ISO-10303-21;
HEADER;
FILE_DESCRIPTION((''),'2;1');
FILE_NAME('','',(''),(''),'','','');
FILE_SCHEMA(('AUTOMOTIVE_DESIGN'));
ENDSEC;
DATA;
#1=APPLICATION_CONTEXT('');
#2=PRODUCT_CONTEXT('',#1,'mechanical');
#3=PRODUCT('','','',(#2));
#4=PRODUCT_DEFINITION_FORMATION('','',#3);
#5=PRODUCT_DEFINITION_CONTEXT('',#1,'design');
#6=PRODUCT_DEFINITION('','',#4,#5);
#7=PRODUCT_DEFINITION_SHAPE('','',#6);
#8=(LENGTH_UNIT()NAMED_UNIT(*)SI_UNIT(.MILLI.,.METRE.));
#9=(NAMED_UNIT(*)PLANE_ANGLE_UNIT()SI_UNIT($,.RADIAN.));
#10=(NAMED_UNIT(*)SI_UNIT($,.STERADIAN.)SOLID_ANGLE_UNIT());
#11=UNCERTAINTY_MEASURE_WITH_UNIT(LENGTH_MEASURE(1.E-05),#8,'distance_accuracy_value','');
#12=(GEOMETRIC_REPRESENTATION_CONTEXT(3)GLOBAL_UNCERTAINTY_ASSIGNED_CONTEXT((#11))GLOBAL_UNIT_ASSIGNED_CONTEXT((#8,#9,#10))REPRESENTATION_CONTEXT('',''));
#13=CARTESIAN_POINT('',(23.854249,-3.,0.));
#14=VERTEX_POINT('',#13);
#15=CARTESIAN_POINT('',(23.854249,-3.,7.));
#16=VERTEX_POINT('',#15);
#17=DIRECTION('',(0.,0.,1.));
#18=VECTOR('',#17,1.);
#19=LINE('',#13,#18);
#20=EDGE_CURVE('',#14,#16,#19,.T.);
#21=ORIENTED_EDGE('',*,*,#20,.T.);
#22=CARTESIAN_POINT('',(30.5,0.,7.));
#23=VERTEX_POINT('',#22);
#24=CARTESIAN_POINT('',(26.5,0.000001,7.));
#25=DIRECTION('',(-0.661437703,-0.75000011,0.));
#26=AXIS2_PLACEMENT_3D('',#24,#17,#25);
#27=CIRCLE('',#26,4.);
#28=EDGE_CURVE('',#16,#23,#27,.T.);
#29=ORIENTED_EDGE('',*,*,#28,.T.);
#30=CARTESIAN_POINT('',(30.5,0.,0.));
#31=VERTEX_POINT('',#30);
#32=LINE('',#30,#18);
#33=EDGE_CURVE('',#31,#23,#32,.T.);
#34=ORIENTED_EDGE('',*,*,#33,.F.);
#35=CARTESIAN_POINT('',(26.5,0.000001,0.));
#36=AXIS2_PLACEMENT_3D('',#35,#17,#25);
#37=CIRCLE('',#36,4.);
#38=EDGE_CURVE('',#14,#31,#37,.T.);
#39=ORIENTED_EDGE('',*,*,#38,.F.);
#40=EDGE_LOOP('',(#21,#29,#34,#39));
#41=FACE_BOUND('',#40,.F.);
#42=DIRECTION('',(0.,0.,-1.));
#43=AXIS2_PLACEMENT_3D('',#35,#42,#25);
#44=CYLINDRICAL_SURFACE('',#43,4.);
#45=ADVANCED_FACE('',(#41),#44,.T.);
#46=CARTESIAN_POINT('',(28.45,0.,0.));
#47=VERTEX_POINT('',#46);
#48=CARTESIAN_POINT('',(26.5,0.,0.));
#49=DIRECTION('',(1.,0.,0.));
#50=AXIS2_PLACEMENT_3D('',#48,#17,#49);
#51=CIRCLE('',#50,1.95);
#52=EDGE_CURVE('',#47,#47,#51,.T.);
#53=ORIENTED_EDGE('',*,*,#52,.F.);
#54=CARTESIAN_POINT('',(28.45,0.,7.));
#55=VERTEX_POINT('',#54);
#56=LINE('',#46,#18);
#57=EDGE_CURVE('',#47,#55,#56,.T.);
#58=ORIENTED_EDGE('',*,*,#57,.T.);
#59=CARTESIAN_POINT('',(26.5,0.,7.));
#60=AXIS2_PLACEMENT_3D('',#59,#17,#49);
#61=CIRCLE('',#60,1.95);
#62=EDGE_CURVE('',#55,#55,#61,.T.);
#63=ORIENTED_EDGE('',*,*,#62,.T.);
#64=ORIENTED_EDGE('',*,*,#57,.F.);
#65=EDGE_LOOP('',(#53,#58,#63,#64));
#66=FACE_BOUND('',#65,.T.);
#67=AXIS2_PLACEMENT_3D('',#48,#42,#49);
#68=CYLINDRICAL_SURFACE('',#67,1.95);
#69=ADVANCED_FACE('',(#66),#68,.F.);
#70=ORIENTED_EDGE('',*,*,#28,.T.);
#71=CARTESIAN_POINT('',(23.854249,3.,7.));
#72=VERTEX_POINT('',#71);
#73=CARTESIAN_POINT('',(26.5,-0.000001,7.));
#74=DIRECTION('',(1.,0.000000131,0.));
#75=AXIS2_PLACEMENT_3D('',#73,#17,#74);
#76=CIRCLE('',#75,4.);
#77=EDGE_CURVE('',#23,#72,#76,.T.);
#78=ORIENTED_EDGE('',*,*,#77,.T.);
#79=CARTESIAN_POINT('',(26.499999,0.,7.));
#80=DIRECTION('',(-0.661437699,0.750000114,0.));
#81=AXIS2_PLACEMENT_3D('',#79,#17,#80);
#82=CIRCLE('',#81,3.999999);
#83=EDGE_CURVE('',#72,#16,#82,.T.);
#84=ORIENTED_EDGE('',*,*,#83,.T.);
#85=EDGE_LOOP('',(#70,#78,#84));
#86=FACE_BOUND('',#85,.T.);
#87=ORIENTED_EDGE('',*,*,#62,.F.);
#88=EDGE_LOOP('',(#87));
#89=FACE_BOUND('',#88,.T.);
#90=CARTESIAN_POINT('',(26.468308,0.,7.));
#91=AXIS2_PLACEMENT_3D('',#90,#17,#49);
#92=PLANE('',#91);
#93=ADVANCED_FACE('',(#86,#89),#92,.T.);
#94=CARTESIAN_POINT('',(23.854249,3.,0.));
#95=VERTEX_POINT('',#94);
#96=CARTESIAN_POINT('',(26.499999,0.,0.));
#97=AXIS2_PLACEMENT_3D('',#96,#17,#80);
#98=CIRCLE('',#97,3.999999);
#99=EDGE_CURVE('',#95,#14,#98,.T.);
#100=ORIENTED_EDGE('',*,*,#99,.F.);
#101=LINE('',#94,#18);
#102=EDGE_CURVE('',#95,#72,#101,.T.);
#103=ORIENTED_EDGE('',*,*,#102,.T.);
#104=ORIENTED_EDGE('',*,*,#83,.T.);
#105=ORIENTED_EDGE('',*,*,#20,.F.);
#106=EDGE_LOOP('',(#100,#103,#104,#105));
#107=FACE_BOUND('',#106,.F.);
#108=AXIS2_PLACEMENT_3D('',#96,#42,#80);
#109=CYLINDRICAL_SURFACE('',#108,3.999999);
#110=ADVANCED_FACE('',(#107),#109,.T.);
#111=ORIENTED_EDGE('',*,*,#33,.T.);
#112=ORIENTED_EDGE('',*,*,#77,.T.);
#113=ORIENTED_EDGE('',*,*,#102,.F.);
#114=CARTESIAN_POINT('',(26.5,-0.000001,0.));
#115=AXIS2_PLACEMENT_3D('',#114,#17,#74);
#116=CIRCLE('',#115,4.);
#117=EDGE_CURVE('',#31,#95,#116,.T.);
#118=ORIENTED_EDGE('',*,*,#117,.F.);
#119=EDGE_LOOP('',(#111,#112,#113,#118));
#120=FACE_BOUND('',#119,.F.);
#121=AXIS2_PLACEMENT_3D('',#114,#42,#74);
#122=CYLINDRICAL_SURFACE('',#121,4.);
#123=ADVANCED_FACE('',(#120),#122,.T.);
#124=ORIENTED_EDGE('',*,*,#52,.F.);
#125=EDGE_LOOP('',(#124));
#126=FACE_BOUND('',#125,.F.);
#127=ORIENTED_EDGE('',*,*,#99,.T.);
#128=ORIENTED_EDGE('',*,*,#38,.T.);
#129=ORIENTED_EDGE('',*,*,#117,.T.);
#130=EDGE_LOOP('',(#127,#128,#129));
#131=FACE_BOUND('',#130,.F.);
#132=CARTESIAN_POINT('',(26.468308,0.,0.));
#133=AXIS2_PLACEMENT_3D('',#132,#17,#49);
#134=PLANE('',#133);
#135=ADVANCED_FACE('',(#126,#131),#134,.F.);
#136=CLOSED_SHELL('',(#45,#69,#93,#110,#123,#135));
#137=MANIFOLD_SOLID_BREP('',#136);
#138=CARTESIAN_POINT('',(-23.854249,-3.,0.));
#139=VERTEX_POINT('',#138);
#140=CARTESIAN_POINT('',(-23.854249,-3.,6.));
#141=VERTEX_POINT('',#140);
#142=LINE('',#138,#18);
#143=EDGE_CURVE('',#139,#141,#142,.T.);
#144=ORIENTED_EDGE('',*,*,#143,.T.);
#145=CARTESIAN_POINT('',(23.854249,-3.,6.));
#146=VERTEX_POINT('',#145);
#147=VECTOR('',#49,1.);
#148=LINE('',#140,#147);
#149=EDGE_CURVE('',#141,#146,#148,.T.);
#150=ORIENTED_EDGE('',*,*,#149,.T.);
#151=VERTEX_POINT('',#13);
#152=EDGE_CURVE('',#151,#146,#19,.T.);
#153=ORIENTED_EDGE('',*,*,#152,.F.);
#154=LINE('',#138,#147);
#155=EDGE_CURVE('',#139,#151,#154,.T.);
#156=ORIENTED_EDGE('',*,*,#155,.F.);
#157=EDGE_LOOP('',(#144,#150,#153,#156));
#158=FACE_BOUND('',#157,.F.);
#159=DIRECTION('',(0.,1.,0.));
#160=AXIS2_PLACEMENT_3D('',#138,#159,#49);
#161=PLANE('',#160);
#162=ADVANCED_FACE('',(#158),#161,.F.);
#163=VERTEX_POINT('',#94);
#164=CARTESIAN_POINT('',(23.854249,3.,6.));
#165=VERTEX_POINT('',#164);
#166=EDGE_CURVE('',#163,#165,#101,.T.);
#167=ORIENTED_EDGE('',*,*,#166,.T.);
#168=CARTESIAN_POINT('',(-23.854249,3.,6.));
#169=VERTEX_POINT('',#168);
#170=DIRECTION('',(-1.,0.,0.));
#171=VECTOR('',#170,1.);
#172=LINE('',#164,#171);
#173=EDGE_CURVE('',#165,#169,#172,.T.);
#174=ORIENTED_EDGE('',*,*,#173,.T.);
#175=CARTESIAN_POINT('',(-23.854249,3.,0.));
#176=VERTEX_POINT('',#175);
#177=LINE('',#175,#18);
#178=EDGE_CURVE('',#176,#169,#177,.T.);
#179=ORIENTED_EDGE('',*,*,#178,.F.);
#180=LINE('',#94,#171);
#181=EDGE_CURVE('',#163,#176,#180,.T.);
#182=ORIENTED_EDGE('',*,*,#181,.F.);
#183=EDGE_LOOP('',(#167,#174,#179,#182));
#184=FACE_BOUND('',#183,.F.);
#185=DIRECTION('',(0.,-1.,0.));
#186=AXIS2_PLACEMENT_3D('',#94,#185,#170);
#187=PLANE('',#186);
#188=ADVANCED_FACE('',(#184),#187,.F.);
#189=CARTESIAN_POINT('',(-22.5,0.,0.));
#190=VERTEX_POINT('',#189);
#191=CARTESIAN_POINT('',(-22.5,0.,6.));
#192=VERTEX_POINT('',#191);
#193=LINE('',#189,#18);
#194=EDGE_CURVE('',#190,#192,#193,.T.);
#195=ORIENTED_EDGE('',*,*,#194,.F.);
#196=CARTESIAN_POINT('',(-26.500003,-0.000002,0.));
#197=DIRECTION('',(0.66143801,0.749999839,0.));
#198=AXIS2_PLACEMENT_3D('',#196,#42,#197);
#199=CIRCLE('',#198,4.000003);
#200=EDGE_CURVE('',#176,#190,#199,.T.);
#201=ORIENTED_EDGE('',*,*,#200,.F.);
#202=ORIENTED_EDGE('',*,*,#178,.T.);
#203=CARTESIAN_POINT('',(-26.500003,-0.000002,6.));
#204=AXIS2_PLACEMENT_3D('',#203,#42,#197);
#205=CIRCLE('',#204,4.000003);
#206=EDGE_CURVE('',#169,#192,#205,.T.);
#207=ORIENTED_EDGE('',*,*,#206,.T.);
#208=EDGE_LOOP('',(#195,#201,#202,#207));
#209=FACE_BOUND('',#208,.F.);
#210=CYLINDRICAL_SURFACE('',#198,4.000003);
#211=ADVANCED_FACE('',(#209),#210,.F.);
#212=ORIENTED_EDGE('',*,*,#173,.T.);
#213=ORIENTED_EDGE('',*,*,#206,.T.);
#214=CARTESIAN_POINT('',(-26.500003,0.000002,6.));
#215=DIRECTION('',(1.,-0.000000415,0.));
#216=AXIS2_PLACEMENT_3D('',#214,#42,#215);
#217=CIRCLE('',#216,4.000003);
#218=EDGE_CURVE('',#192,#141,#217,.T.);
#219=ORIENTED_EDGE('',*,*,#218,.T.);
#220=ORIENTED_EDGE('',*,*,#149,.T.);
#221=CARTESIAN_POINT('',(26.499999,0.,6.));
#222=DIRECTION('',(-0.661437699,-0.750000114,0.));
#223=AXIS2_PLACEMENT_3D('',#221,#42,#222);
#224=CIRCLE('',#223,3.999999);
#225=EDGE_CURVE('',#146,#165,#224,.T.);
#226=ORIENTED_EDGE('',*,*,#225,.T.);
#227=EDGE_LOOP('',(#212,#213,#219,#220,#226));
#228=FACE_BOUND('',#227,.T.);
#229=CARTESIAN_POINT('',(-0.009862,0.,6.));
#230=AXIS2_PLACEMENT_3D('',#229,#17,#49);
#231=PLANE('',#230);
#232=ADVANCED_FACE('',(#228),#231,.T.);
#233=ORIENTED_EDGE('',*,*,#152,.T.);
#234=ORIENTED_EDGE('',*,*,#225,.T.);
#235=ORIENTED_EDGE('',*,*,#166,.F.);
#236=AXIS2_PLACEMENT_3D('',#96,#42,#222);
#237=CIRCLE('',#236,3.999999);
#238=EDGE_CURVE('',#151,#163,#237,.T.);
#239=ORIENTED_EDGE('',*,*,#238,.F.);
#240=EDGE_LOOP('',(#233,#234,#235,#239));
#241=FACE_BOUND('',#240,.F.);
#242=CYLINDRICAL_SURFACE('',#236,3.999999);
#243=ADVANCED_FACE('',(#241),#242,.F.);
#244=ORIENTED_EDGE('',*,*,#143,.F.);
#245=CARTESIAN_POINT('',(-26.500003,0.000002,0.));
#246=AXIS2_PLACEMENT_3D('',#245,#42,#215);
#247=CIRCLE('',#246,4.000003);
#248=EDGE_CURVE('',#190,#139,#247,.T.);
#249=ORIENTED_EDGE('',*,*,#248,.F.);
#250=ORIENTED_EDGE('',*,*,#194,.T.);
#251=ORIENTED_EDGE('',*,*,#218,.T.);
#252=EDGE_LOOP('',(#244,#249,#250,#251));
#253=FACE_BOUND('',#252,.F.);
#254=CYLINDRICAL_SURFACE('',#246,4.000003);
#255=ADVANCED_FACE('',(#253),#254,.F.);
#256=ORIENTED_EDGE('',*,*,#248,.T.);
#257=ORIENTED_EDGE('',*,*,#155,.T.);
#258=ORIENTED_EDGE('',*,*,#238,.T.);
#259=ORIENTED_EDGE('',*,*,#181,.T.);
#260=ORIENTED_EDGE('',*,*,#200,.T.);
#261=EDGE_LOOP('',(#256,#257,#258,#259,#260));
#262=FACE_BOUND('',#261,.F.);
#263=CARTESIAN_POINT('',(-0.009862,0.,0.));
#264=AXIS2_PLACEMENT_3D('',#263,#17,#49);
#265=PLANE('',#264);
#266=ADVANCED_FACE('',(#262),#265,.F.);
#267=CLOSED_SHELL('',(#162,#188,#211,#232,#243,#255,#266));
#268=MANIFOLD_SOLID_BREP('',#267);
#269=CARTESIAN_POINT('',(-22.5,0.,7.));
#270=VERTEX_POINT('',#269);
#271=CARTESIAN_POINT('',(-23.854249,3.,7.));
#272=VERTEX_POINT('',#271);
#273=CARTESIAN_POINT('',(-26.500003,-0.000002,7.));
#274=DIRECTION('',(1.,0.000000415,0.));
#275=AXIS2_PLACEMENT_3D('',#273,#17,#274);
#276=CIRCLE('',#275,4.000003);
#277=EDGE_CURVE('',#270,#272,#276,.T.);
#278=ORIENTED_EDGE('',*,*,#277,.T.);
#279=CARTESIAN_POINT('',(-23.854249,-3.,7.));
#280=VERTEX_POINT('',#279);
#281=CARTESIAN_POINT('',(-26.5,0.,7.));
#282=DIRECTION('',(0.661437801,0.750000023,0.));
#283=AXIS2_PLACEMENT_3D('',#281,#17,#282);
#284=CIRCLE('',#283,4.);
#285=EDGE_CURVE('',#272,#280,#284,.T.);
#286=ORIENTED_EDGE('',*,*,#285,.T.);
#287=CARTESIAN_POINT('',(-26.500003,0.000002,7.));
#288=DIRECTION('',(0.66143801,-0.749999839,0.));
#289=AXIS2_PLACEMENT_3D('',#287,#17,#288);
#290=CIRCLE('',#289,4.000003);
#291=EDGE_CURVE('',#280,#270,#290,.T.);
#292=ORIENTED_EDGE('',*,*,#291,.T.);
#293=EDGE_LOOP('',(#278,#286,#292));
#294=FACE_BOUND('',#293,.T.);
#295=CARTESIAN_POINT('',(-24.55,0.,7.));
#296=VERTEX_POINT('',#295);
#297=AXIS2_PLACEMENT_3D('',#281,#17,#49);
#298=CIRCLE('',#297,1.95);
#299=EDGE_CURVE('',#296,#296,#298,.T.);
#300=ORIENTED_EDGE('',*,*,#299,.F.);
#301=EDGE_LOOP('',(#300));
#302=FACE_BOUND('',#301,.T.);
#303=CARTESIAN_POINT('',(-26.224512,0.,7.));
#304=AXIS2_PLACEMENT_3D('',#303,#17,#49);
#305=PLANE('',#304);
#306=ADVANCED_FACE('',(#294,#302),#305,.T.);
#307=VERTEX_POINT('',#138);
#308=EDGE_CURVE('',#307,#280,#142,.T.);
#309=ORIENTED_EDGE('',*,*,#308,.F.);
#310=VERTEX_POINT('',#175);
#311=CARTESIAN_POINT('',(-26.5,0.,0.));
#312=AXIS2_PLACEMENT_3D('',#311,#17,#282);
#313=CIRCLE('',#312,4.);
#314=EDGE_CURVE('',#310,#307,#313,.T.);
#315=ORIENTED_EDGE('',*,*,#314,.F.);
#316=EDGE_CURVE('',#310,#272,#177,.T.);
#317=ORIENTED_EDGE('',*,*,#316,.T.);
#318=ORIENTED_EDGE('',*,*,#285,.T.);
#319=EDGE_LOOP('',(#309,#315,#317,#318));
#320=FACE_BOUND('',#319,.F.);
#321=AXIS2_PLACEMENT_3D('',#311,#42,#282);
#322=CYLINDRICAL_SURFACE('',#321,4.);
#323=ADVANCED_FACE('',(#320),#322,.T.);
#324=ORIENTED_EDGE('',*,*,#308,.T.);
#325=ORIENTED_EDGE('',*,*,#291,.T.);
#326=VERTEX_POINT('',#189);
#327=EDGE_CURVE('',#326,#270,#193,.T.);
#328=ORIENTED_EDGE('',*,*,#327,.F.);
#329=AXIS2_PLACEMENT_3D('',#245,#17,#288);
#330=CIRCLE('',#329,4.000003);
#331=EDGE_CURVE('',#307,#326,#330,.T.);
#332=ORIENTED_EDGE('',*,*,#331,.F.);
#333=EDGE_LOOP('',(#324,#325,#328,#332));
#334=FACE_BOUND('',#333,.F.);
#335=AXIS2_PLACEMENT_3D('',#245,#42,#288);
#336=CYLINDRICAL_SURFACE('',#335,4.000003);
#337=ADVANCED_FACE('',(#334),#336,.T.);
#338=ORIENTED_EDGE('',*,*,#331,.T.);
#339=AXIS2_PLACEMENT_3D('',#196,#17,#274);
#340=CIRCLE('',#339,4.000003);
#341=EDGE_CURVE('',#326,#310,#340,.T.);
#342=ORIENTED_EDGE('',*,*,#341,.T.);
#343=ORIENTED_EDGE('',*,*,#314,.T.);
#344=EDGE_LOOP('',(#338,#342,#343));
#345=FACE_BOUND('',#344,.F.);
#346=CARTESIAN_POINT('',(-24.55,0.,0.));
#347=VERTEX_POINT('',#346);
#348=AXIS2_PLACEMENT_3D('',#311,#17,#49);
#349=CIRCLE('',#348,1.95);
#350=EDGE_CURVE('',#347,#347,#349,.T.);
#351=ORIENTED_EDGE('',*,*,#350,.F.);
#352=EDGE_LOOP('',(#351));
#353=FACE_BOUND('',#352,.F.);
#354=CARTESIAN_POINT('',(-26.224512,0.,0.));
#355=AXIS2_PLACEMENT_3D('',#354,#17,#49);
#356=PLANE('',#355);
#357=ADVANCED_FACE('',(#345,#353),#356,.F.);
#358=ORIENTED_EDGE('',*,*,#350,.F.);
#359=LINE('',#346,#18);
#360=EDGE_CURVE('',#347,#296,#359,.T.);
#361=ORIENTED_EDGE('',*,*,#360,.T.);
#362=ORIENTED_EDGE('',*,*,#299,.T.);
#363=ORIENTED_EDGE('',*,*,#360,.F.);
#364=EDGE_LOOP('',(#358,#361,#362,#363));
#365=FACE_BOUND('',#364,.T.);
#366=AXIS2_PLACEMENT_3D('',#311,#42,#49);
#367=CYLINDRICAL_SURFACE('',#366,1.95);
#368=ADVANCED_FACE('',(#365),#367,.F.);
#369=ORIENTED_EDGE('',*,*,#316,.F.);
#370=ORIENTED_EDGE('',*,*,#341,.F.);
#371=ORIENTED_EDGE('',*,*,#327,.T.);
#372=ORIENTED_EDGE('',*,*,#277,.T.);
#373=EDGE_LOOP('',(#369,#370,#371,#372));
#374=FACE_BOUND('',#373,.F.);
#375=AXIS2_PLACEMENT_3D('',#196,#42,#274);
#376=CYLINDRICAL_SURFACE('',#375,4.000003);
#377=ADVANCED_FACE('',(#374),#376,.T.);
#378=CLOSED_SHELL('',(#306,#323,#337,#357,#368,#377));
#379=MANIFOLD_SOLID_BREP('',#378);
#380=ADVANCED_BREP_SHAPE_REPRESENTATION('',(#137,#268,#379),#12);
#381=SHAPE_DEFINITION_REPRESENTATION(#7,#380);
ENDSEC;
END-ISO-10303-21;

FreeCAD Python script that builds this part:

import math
import FreeCAD as App
import Part
import Sketcher

doc = App.newDocument("Part")
params = doc.addObject("Spreadsheet::Sheet", "Params")
for row, (alias, value) in enumerate([
    ("sketch1_radius", "4 mm"),
    ("sketch1_diameter", "3.9 mm"),
    ("pad1_length", "7 mm"),
    ("sketch2_radius", "3.999999 mm"),
    ("pad2_length", "6 mm"),
], start=1):
    params.set(f"A{row}", alias)
    params.set(f"B{row}", "=" + value)
    params.setAlias(f"B{row}", alias)

body = doc.addObject("PartDesign::Body", "Body")
body.AllowCompound = True

# Sketch on XY plane
sketch1 = body.newObject("Sketcher::SketchObject", "Sketch")
sketch1.AttachmentSupport = (doc.getObject("XY_Plane"), [""])
sketch1.MapMode = "FlatFace"
sketch1.addGeometry([
    Part.ArcOfCircle(Part.Circle(App.Vector(-26.5, 0, 0), App.Vector(0, 0, 1), 4), math.radians(-49), math.radians(0)),  # 0
    Part.ArcOfCircle(Part.Circle(App.Vector(-26.5, 0, 0), App.Vector(0, 0, 1), 4), math.radians(0), math.radians(49)),  # 1
    Part.ArcOfCircle(Part.Circle(App.Vector(-26.5, 0, 0), App.Vector(0, 0, 1), 4), math.radians(49), math.radians(311)),  # 2
    Part.Circle(App.Vector(-26.5, 0, 0), App.Vector(0, 0, 1), 1.9),  # 3
    Part.ArcOfCircle(Part.Circle(App.Vector(26.5, 0, 0), App.Vector(0, 0, 1), 4), math.radians(0), math.radians(131)),  # 4
    Part.ArcOfCircle(Part.Circle(App.Vector(26.5, 0, 0), App.Vector(0, 0, 1), 4), math.radians(131), math.radians(229)),  # 5
    Part.ArcOfCircle(Part.Circle(App.Vector(26.5, 0, 0), App.Vector(0, 0, 1), 4), math.radians(-131), math.radians(0)),  # 6
    Part.Circle(App.Vector(26.5, 0, 0), App.Vector(0, 0, 1), 1.9),  # 7
], False)
sketch1.addConstraint([
    Sketcher.Constraint("Tangent", 0, 2, 1, 1),
    Sketcher.Constraint("Tangent", 1, 2, 2, 1),
    Sketcher.Constraint("Tangent", 2, 2, 0, 1),
    Sketcher.Constraint("Tangent", 4, 2, 5, 1),
    Sketcher.Constraint("Tangent", 5, 2, 6, 1),
    Sketcher.Constraint("Tangent", 6, 2, 4, 1),
    Sketcher.Constraint("Coincident", 3, 3, 0, 3),
    Sketcher.Constraint("Coincident", 7, 3, 4, 3),
    Sketcher.Constraint("Equal", 2, 4),
    Sketcher.Constraint("Equal", 3, 7),
    Sketcher.Constraint("Symmetric", 0, 3, 4, 3, -1, 1),
    Sketcher.Constraint("Symmetric", 1, 2, 4, 2, -2),
    Sketcher.Constraint("PointOnObject", 0, 2, -1),
    Sketcher.Constraint("PointOnObject", 6, 2, -1),
    Sketcher.Constraint("Horizontal", 2, 2, 5, 2),
    Sketcher.Constraint("Vertical", 1, 2, 2, 2),
    Sketcher.Constraint("Radius", 2, 4.0),
    Sketcher.Constraint("Diameter", 3, 3.9),
    Sketcher.Constraint("DistanceY", -1, 1, 1, 2, 3.0),
    Sketcher.Constraint("DistanceX", 3, 3, 4, 3, 53.0),
])
sketch1.setExpression("Constraints[16]", "Params.sketch1_radius")
sketch1.setExpression("Constraints[17]", "Params.sketch1_diameter")
pad1 = body.newObject("PartDesign::Pad", "Pad")
pad1.Profile = sketch1
pad1.setExpression("Length", "Params.pad1_length")
body2 = doc.addObject("PartDesign::Body", "Body001")

# Sketch on XY plane
sketch2 = body2.newObject("Sketcher::SketchObject", "Sketch001")
sketch2.AttachmentSupport = (doc.getObject("XY_Plane001"), [""])
sketch2.MapMode = "FlatFace"
sketch2.addGeometry([
    Part.ArcOfCircle(Part.Circle(App.Vector(-26.5, 0, 0), App.Vector(0, 0, 1), 4), math.radians(0), math.radians(49)),  # 0
    Part.ArcOfCircle(Part.Circle(App.Vector(-26.5, 0, 0), App.Vector(0, 0, 1), 4), math.radians(-49), math.radians(0)),  # 1
    Part.LineSegment(App.Vector(-23.9, -3, 0), App.Vector(23.9, -3, 0)),  # 2
    Part.ArcOfCircle(Part.Circle(App.Vector(26.5, 0, 0), App.Vector(0, 0, 1), 4), math.radians(131), math.radians(229)),  # 3
    Part.LineSegment(App.Vector(23.9, 3, 0), App.Vector(-23.9, 3, 0)),  # 4
], False)
sketch2.addConstraint([
    Sketcher.Constraint("Tangent", 0, 1, 1, 2),
    Sketcher.Constraint("Coincident", 1, 1, 2, 1),
    Sketcher.Constraint("Coincident", 2, 2, 3, 2),
    Sketcher.Constraint("Coincident", 3, 1, 4, 1),
    Sketcher.Constraint("Coincident", 4, 2, 0, 2),
    Sketcher.Constraint("Horizontal", 2),
    Sketcher.Constraint("Horizontal", 4),
    Sketcher.Constraint("Equal", 0, 1),
    Sketcher.Constraint("Symmetric", 0, 3, 3, 3, -1, 1),
    Sketcher.Constraint("Symmetric", 1, 1, 3, 1, -1, 1),
    Sketcher.Constraint("PointOnObject", 0, 3, -1),
    Sketcher.Constraint("PointOnObject", 0, 1, -1),
    Sketcher.Constraint("Radius", 3, 3.999999),
    Sketcher.Constraint("DistanceY", 1, 1, -1, 1, 3.0),
    Sketcher.Constraint("DistanceX", 0, 1, 3, 3, 48.999999),
])
sketch2.setExpression("Constraints[12]", "Params.sketch2_radius")
pad2 = body2.newObject("PartDesign::Pad", "Pad001")
pad2.Profile = sketch2
pad2.setExpression("Length", "Params.pad2_length")

doc.recompute()
